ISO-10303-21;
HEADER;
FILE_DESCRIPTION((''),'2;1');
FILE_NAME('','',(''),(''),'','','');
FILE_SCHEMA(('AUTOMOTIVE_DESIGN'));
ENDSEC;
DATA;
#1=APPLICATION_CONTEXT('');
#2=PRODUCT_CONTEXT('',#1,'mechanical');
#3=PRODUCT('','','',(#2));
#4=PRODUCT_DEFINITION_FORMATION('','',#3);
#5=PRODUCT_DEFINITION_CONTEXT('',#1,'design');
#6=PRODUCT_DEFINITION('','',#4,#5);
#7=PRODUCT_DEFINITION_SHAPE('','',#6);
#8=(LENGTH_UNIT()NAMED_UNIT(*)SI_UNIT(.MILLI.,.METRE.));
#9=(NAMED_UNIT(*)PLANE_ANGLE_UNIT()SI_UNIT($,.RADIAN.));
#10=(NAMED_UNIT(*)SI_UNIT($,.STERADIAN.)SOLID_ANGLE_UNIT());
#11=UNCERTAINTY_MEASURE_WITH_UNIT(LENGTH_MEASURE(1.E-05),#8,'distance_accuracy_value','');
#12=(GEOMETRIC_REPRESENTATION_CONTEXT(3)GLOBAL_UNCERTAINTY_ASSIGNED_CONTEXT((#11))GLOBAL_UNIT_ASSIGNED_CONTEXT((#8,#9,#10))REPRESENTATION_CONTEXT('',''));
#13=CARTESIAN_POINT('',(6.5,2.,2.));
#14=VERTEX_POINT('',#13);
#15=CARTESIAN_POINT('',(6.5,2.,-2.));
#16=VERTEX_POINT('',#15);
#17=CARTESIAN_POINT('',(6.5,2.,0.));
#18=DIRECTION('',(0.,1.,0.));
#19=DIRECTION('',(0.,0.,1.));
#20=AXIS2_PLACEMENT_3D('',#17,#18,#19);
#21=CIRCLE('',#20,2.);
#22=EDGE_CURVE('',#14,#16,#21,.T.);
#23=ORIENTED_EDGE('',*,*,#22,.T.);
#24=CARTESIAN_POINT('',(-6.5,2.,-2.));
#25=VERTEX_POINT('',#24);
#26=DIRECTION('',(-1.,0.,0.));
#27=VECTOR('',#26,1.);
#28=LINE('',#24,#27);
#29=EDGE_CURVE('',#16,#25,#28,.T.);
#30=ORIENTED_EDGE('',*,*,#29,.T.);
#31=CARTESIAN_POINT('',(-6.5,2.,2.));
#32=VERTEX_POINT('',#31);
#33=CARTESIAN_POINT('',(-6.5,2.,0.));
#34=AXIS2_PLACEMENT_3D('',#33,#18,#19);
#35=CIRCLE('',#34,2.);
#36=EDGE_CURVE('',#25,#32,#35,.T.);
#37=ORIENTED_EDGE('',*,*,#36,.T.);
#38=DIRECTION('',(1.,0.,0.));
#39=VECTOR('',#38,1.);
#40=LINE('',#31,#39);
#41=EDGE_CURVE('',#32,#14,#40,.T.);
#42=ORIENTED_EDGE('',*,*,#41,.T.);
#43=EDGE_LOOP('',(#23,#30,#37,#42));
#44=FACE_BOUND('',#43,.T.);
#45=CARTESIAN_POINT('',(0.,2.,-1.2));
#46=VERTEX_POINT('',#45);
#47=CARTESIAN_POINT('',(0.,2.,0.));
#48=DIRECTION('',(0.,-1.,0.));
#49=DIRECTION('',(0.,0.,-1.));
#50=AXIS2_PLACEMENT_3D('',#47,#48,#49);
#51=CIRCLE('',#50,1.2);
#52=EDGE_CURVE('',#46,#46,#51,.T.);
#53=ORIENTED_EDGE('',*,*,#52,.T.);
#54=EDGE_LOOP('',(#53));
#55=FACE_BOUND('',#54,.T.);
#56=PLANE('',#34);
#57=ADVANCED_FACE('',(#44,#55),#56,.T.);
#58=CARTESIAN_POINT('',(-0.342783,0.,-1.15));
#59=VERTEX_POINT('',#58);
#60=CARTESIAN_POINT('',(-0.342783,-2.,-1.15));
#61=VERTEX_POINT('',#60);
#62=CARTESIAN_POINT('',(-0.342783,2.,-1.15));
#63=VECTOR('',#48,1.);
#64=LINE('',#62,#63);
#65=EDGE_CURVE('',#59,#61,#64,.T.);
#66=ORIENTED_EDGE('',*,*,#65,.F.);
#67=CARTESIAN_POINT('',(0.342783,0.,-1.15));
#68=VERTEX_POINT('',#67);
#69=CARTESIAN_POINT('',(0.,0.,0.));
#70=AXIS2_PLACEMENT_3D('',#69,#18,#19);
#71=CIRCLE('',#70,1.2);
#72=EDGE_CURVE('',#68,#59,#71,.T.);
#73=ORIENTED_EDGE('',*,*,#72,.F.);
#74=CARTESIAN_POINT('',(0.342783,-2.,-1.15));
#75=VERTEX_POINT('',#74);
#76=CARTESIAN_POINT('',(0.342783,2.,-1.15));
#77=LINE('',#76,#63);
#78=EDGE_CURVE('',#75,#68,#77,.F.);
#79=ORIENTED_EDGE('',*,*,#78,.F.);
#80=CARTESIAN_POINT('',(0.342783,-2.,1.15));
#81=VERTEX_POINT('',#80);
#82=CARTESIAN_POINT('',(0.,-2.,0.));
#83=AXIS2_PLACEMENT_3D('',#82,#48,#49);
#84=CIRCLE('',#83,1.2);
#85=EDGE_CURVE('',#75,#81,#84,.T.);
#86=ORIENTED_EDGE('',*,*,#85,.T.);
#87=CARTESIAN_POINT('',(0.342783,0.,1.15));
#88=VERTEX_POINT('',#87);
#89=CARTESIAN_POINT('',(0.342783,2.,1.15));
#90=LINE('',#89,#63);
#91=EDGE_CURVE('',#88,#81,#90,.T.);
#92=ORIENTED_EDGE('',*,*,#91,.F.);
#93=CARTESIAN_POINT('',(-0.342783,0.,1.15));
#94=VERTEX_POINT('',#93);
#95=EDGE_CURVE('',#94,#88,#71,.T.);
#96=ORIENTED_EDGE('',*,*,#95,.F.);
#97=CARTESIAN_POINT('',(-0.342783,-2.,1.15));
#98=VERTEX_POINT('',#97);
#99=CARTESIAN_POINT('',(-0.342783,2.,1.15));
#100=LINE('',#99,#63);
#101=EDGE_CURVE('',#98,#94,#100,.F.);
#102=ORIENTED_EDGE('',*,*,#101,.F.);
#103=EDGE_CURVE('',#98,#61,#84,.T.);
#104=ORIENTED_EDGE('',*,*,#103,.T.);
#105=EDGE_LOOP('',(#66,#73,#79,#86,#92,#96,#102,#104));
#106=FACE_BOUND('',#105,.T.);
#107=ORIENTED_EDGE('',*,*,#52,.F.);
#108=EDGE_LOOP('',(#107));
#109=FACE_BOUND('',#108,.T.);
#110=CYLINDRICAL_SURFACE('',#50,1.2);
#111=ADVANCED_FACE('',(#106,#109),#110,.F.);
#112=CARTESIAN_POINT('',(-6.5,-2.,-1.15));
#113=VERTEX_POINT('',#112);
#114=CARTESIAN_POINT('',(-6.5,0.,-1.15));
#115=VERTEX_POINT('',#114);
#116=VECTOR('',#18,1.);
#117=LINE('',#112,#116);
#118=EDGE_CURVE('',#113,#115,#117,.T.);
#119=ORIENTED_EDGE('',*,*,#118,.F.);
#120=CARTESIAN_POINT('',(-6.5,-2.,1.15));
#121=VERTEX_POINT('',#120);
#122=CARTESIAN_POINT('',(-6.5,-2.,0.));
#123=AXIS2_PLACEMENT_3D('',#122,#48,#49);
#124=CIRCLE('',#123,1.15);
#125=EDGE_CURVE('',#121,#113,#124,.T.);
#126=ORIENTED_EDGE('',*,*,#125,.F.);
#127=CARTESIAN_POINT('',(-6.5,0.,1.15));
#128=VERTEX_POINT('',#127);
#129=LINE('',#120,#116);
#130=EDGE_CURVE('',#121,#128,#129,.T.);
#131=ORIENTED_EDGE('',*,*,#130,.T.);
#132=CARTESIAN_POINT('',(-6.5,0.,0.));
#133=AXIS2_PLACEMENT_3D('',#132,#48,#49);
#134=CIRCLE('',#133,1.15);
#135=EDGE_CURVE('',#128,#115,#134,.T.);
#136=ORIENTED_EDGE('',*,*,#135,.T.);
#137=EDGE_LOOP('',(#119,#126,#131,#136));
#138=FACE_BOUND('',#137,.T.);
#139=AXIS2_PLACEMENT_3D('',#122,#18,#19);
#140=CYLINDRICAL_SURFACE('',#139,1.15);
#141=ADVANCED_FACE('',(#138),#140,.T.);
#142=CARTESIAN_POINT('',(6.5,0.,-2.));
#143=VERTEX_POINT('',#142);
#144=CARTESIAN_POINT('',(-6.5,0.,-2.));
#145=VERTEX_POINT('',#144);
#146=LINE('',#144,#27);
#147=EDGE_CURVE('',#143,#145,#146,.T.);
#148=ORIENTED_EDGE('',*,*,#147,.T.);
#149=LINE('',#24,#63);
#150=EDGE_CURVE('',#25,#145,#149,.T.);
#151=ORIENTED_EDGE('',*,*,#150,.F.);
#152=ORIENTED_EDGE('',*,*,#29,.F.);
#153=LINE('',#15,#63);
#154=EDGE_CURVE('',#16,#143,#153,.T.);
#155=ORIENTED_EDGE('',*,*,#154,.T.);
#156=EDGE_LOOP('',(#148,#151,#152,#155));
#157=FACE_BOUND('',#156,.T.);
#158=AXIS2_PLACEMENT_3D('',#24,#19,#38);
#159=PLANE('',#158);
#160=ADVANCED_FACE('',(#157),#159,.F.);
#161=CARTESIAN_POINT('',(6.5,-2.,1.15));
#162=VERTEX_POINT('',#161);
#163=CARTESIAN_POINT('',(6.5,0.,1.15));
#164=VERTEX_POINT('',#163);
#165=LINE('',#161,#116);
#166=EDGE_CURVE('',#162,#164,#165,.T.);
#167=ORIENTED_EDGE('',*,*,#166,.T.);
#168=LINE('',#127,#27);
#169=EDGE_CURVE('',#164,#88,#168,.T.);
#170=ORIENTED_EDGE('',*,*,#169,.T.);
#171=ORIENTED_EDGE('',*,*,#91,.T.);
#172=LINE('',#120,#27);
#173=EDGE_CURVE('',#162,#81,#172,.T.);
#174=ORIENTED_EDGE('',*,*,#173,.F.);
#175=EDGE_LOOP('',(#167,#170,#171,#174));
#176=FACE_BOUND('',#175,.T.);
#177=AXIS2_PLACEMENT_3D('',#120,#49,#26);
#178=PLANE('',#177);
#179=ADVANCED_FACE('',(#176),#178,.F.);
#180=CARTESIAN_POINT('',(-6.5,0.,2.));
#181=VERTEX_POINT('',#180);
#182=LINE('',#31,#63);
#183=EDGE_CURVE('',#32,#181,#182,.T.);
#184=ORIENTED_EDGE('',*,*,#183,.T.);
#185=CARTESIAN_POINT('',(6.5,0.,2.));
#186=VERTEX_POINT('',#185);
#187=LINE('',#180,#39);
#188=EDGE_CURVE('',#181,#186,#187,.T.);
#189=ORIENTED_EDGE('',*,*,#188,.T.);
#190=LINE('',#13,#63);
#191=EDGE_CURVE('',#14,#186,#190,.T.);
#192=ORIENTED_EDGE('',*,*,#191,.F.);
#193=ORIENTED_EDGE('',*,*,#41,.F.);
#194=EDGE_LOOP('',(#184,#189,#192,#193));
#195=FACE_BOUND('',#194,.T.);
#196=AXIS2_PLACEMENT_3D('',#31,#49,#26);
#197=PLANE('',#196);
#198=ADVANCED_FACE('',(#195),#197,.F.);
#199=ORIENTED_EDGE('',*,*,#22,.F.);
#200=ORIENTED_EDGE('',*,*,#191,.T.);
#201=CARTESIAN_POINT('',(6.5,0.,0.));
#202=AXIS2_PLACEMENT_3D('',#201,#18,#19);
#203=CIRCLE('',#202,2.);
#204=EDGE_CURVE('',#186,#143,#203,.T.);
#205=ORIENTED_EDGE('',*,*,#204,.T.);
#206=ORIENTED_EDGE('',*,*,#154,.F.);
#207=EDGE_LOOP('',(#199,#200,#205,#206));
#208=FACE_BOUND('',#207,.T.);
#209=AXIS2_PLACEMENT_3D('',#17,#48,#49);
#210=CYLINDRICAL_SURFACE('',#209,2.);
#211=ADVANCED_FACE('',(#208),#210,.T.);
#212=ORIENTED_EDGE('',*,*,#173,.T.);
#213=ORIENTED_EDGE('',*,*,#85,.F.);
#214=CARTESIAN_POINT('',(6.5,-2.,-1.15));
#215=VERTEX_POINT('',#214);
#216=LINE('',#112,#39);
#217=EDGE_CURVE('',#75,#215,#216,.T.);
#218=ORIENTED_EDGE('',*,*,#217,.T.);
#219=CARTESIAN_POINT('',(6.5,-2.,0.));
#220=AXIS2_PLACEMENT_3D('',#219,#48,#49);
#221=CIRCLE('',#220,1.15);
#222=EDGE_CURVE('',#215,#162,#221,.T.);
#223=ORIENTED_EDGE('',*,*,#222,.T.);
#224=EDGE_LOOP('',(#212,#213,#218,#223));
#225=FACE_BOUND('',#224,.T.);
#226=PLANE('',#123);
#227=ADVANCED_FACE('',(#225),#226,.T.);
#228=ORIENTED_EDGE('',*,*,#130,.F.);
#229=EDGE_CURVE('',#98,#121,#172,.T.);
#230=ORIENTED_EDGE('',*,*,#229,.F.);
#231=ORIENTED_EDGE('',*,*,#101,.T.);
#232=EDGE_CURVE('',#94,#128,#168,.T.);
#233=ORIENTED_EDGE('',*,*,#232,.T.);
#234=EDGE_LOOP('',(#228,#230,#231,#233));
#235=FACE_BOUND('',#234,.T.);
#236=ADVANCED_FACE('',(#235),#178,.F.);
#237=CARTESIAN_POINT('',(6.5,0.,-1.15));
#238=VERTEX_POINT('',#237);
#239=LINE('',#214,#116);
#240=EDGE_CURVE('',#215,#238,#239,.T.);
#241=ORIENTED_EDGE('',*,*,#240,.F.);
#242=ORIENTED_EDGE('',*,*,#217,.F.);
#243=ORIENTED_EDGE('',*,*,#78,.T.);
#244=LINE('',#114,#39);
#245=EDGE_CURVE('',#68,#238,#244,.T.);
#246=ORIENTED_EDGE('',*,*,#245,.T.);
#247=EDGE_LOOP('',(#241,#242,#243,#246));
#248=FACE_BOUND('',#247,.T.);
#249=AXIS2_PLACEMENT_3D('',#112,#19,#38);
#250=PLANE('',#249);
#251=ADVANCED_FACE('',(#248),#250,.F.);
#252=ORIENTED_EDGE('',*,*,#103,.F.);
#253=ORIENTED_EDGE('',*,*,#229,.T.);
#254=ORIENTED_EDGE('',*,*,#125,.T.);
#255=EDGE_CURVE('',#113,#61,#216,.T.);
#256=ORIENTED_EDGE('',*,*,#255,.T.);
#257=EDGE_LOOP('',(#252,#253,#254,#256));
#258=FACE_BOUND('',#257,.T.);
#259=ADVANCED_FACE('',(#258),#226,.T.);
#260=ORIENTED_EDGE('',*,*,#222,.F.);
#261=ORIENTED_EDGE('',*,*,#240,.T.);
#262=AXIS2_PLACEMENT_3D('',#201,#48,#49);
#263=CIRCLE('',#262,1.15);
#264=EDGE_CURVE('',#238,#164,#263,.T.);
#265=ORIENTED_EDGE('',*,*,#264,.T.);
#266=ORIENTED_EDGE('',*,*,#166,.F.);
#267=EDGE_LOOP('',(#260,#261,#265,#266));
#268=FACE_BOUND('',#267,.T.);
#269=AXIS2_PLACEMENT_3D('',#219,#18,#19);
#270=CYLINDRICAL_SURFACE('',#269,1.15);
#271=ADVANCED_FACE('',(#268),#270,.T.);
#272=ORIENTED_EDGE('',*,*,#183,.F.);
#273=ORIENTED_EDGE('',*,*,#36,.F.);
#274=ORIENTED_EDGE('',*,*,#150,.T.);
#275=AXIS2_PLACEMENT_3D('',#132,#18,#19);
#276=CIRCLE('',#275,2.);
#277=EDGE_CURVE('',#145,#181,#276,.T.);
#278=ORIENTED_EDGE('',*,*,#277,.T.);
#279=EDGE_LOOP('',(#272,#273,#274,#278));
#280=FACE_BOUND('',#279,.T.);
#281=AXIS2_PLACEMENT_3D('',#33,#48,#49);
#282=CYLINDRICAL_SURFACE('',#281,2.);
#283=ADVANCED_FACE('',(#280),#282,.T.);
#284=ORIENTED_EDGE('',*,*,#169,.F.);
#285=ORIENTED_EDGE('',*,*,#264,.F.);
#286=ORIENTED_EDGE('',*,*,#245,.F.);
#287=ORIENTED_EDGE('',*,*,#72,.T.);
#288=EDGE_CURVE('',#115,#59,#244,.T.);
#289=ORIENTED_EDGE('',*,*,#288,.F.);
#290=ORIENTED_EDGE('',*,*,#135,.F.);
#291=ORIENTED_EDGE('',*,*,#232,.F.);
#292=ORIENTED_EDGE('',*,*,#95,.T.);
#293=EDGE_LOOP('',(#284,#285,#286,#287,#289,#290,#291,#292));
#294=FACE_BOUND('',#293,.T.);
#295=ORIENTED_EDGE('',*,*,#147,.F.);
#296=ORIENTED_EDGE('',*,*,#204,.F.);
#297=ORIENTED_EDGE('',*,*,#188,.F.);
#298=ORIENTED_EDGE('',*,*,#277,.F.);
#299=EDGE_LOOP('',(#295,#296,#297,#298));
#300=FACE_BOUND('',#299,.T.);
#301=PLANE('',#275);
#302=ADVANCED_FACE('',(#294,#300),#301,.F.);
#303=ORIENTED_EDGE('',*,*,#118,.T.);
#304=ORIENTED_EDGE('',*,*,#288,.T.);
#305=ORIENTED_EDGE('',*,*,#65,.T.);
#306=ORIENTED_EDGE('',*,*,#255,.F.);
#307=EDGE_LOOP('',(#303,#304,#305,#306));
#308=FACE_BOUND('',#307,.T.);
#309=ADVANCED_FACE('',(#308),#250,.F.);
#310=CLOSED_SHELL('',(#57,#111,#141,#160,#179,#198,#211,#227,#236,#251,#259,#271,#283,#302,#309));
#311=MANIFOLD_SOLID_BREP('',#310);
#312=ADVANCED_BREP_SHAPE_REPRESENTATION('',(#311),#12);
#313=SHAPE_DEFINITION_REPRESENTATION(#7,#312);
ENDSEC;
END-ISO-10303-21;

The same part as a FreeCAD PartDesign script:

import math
import FreeCAD as App
import Part
import Sketcher
Q = App.Units.Quantity

doc = App.newDocument("Part")
body = doc.addObject("PartDesign::Body", "Body")

# Sketch on XZ plane
sketch1 = body.newObject("Sketcher::SketchObject", "Sketch")
sketch1.AttachmentSupport = (doc.getObject("XZ_Plane"), [""])
sketch1.MapMode = "FlatFace"
sketch1.addGeometry([
    Part.LineSegment(App.Vector(6.5, -2, 0), App.Vector(-6.5, -2, 0)),
    Part.ArcOfCircle(Part.Circle(App.Vector(-6.5, 0, 0), App.Vector(0, 0, 1), 2), math.radians(90), math.radians(270)),
    Part.LineSegment(App.Vector(-6.5, 2, 0), App.Vector(6.5, 2, 0)),
    Part.ArcOfCircle(Part.Circle(App.Vector(6.5, 0, 0), App.Vector(0, 0, 1), 2), math.radians(-90), math.radians(90)),
], False)
sketch1.addConstraint([
    Sketcher.Constraint("Tangent", 0, 2, 1, 2),
    Sketcher.Constraint("Tangent", 1, 1, 2, 1),
    Sketcher.Constraint("Tangent", 2, 2, 3, 2),
    Sketcher.Constraint("Tangent", 3, 1, 0, 1),
    Sketcher.Constraint("Horizontal", 0),
    Sketcher.Constraint("Horizontal", 2),
    Sketcher.Constraint("Symmetric", 1, 3, 3, 3, -1, 1),
    Sketcher.Constraint("Radius", 1, Q("2 mm")),
    Sketcher.Constraint("DistanceX", 0, 2, 0, 1, Q("13 mm")),
])
pad1 = body.newObject("PartDesign::Pad", "Pad")
pad1.Profile = sketch1
pad1.Length = 2
pad1.Reversed = True

# Sketch on XZ plane
sketch2 = body.newObject("Sketcher::SketchObject", "Sketch001")
sketch2.AttachmentSupport = (doc.getObject("XZ_Plane"), [""])
sketch2.MapMode = "FlatFace"
sketch2.addGeometry([
    Part.LineSegment(App.Vector(6.5, 1.1, 0), App.Vector(-6.5, 1.1, 0)),
    Part.ArcOfCircle(Part.Circle(App.Vector(-6.5, 0, 0), App.Vector(0, 0, 1), 1.1), math.radians(90), math.radians(270)),
    Part.LineSegment(App.Vector(-6.5, -1.1, 0), App.Vector(6.5, -1.1, 0)),
    Part.ArcOfCircle(Part.Circle(App.Vector(6.5, 0, 0), App.Vector(0, 0, 1), 1.1), math.radians(-90), math.radians(90)),
], False)
sketch2.addConstraint([
    Sketcher.Constraint("Tangent", 0, 2, 1, 1),
    Sketcher.Constraint("Tangent", 1, 2, 2, 1),
    Sketcher.Constraint("Tangent", 2, 2, 3, 1),
    Sketcher.Constraint("Tangent", 3, 2, 0, 1),
    Sketcher.Constraint("Horizontal", 0),
    Sketcher.Constraint("Horizontal", 2),
    Sketcher.Constraint("Symmetric", 1, 3, 3, 3, -1, 1),
    Sketcher.Constraint("DistanceX", 0, 2, 0, 1, Q("13 mm")),
    Sketcher.Constraint("Radius", 1, Q("1.15 mm")),
])
pad2 = body.newObject("PartDesign::Pad", "Pad001")
pad2.Profile = sketch2
pad2.Length = 2

# Sketch on XZ plane
sketch3 = body.newObject("Sketcher::SketchObject", "Sketch002")
sketch3.AttachmentSupport = (doc.getObject("XZ_Plane"), [""])
sketch3.MapMode = "FlatFace"
sketch3.AttachmentOffset = App.Placement(App.Vector(0, 0, 2), App.Rotation())
sketch3.addGeometry(Part.Circle(App.Vector(0, 0, 0), App.Vector(0, 0, 1), 1.2), False)
sketch3.addConstraint([
    Sketcher.Constraint("Coincident", 0, 3, -1, 1),
    Sketcher.Constraint("Diameter", 0, Q("2.4 mm")),
])
pocket1 = body.newObject("PartDesign::Pocket", "Pocket")
pocket1.Profile = sketch3
pocket1.Type = "ThroughAll"

doc.recompute()
